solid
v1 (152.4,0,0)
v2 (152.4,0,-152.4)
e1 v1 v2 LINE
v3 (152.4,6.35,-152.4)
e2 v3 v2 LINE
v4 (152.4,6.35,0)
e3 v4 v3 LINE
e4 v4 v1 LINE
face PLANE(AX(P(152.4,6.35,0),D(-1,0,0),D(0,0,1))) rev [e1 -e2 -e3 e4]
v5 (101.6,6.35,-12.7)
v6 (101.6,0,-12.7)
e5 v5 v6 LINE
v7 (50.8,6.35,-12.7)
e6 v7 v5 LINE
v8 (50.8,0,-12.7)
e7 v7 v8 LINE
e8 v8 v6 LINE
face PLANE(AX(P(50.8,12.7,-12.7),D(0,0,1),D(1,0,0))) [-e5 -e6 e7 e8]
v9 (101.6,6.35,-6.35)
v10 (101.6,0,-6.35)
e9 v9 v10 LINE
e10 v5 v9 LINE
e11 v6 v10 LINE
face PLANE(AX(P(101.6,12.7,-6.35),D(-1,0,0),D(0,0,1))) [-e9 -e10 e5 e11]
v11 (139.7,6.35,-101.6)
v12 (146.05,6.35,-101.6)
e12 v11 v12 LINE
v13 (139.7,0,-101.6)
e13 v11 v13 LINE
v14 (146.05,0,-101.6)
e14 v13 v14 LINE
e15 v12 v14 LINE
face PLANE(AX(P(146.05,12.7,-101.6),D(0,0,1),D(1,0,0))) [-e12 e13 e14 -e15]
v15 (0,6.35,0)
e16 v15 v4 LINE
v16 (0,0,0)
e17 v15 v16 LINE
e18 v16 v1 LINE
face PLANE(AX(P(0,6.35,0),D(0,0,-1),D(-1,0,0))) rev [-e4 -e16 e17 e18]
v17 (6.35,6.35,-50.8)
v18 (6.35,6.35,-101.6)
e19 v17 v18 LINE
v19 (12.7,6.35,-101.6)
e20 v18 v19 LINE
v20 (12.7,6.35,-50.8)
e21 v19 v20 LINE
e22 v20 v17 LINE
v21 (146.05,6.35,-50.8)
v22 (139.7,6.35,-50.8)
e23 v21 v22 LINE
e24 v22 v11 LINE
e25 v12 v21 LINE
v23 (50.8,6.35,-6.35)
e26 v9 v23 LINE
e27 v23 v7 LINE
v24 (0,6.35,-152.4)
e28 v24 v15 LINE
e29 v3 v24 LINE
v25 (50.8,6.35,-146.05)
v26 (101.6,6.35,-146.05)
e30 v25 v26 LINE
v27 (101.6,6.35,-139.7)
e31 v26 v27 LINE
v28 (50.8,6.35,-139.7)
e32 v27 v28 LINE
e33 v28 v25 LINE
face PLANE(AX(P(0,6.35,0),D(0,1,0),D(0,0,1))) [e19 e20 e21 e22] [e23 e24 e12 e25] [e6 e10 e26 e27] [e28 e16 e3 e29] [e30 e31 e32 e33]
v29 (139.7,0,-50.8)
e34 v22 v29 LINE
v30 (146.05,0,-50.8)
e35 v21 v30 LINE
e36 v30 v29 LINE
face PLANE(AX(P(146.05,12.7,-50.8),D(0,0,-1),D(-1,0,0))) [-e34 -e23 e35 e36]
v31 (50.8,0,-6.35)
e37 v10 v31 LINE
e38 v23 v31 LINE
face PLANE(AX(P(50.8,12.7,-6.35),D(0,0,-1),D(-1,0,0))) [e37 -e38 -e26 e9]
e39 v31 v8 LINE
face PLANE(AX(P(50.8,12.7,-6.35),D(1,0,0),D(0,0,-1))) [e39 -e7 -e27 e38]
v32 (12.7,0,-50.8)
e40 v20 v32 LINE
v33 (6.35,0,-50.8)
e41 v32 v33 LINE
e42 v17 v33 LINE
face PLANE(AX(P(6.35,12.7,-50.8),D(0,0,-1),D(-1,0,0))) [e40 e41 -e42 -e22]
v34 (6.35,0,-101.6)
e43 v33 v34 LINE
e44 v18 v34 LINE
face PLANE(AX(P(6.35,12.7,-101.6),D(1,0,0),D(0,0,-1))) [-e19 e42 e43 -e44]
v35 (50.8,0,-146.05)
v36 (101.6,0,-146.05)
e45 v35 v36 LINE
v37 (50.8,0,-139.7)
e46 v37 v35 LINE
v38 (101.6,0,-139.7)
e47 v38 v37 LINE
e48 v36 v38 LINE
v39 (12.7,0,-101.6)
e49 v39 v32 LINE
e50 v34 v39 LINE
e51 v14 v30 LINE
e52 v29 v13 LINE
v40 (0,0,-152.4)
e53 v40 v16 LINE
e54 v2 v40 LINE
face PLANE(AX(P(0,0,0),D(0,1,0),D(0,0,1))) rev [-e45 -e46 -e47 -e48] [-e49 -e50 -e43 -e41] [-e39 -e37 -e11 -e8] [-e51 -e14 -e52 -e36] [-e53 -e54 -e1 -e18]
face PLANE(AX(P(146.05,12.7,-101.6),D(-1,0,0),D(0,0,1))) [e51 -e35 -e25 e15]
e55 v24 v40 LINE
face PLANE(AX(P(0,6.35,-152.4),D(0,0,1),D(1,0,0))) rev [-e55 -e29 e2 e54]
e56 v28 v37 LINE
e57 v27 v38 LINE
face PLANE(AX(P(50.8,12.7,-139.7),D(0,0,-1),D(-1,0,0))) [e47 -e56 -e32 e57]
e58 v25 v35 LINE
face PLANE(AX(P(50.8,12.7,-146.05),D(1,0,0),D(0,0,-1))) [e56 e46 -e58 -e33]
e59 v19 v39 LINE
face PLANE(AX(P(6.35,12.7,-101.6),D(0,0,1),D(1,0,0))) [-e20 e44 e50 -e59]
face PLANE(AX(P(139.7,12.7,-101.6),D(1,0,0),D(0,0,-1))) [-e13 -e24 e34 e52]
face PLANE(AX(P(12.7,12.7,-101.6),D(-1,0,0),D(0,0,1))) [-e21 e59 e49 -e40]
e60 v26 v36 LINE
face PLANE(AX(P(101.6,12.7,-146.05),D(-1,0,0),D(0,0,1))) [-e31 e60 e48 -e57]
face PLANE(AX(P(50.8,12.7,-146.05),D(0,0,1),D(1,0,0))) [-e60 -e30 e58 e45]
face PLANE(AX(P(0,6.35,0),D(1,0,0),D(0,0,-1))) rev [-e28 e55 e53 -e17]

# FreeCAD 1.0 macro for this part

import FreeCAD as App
import Part
import Sketcher

V = App.Vector
Q = App.Units.Quantity


def add_polygon(sketch, points):
    """Adds a closed chain of lines whose ends are joined by coincident constraints."""
    first, n = sketch.GeometryCount, len(points)
    for a, b in zip(points, points[1:] + points[:1]):
        sketch.addGeometry(Part.LineSegment(App.Vector(*a, 0), App.Vector(*b, 0)), False)
    for i in range(n):
        sketch.addConstraint(Sketcher.Constraint("Coincident", first + i, 2, first + (i + 1) % n, 1))

doc = App.newDocument("Part")
params = doc.addObject("Spreadsheet::Sheet", "Params")
for row, (alias, value) in enumerate([
    ("sketch1_width", "6 in"),
    ("pad1_length", "0.25 in"),
    ("sketch2_width", "2 in"),
    ("sketch2_width2", "0.25 in"),
], start=1):
    params.set(f"A{row}", alias)
    params.set(f"B{row}", "=" + value)
    params.setAlias(f"B{row}", alias)

body = doc.addObject("PartDesign::Body", "Body")

# Sketch on XZ plane
sketch1 = doc.addObject("Sketcher::SketchObject", "Sketch")
body.addObject(sketch1)
sketch1.AttachmentSupport = (doc.XZ_Plane, [""])
sketch1.MapMode = "FlatFace"
add_polygon(sketch1, [(0, -152), (0, 0), (152, 0), (152, -152)])  # lines 0-3
sketch1.addConstraint([
    Sketcher.Constraint("Vertical", 0),
    Sketcher.Constraint("Horizontal", 1),
    Sketcher.Constraint("Vertical", 2),
    Sketcher.Constraint("Horizontal", 3),
    Sketcher.Constraint("Coincident", 0, 2, -1, 1),
    Sketcher.Constraint("Equal", 3, 0),
    Sketcher.Constraint("DistanceX", 1, 1, 1, 2, Q("6 in")),
])
sketch1.setExpression("Constraints[10]", "Params.sketch1_width")
pad1 = doc.addObject("PartDesign::Pad", "Pad")
body.addObject(pad1)
pad1.Profile = sketch1
pad1.setExpression("Length", "Params.pad1_length")
pad1.Reversed = True

# Sketch on XZ plane
sketch2 = doc.addObject("Sketcher::SketchObject", "Sketch001")
body.addObject(sketch2)
sketch2.AttachmentSupport = (doc.XZ_Plane, [""])
sketch2.MapMode = "FlatFace"
sketch2.AttachmentOffset = App.Placement(V(0, 0, -0.25 * 25.4), App.Rotation())
add_polygon(sketch2, [(6, -102), (6, -51), (13, -51), (13, -102)])  # lines 0-3
add_polygon(sketch2, [(140, -102), (140, -51), (146, -51), (146, -102)])  # lines 4-7
add_polygon(sketch2, [(51, -13), (51, -6), (102, -6), (102, -13)])  # lines 8-11
add_polygon(sketch2, [(51, -146), (51, -140), (102, -140), (102, -146)])  # lines 12-15
sketch2.addConstraint([
    Sketcher.Constraint("Vertical", 0),
    Sketcher.Constraint("Horizontal", 1),
    Sketcher.Constraint("Vertical", 2),
    Sketcher.Constraint("Horizontal", 3),
    Sketcher.Constraint("Vertical", 4),
    Sketcher.Constraint("Horizontal", 5),
    Sketcher.Constraint("Vertical", 6),
    Sketcher.Constraint("Horizontal", 7),
    Sketcher.Constraint("Vertical", 8),
    Sketcher.Constraint("Horizontal", 9),
    Sketcher.Constraint("Vertical", 10),
    Sketcher.Constraint("Horizontal", 11),
    Sketcher.Constraint("Vertical", 12),
    Sketcher.Constraint("Horizontal", 13),
    Sketcher.Constraint("Vertical", 14),
    Sketcher.Constraint("Horizontal", 15),
    Sketcher.Constraint("Horizontal", 1, 2, 4, 2),
    Sketcher.Constraint("Horizontal", 3, 2, 6, 2),
    Sketcher.Constraint("Vertical", 11, 2, 12, 2),
    Sketcher.Constraint("Vertical", 10, 2, 13, 2),
    Sketcher.Constraint("Equal", 3, 5),
    Sketcher.Constraint("Equal", 15, 0),
    Sketcher.Constraint("Equal", 7, 8),
    Sketcher.Constraint("Equal", 10, 12),
    Sketcher.Constraint("DistanceX", 9, 1, 9, 2, Q("2 in")),
    Sketcher.Constraint("DistanceY", 0, 2, -1, 1, Q("2 in")),
    Sketcher.Constraint("DistanceX", -1, 1, 8, 2, Q("2 in")),
    Sketcher.Constraint("DistanceX", 1, 2, 4, 2, Q("5 in")),
    Sketcher.Constraint("DistanceX", 1, 1, 1, 2, Q("0.25 in")),
    Sketcher.Constraint("DistanceX", -1, 1, 1, 2, Q("0.5 in")),
    Sketcher.Constraint("DistanceY", 10, 2, -1, 1, Q("0.5 in")),
    Sketcher.Constraint("DistanceY", 12, 2, -1, 1, Q("5.5 in")),
])
sketch2.setExpression("Constraints[40]", "Params.sketch2_width")
sketch2.setExpression("Constraints[44]", "Params.sketch2_width2")
pocket1 = doc.addObject("PartDesign::Pocket", "Pocket")
body.addObject(pocket1)
pocket1.Profile = sketch2
pocket1.Type = "ThroughAll"
pocket1.Midplane = True

doc.recompute()
